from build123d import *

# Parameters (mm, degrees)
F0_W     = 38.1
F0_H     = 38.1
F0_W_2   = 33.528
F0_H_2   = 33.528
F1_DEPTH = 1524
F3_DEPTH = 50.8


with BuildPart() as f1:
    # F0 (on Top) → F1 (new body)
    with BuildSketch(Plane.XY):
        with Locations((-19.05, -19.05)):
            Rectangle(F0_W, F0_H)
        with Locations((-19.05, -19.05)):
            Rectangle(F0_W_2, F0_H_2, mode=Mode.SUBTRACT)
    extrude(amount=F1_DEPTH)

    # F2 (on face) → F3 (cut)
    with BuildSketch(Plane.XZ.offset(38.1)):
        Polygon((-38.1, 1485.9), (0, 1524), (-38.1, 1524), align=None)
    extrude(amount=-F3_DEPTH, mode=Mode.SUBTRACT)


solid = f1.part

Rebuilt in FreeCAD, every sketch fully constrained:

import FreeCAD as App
import Part
import Sketcher

V = App.Vector
Q = App.Units.Quantity

doc = App.newDocument("Part")
body = doc.addObject("PartDesign::Body", "Body")

# Sketch on XY plane
sketch1 = body.newObject("Sketcher::SketchObject", "Sketch")
sketch1.AttachmentSupport = (doc.getObject("XY_Plane"), [""])
sketch1.MapMode = "FlatFace"
sketch1.addGeometry([
    Part.LineSegment(V(-38, 0, 0), V(-38, -38, 0)),  # 0
    Part.LineSegment(V(-38, -38, 0), V(0, -38, 0)),  # 1
    Part.LineSegment(V(0, -38, 0), V(0, 0, 0)),  # 2
    Part.LineSegment(V(0, 0, 0), V(-38, 0, 0)),  # 3
    Part.LineSegment(V(-2, -36, 0), V(-36, -36, 0)),  # 4
    Part.LineSegment(V(-36, -36, 0), V(-36, -2, 0)),  # 5
    Part.LineSegment(V(-36, -2, 0), V(-2, -2, 0)),  # 6
    Part.LineSegment(V(-2, -2, 0), V(-2, -36, 0)),  # 7
], False)
sketch1.addConstraint([
    Sketcher.Constraint("Coincident", 0, 2, 1, 1),
    Sketcher.Constraint("Coincident", 1, 2, 2, 1),
    Sketcher.Constraint("Coincident", 2, 2, 3, 1),
    Sketcher.Constraint("Coincident", 3, 2, 0, 1),
    Sketcher.Constraint("Coincident", 4, 2, 5, 1),
    Sketcher.Constraint("Coincident", 5, 2, 6, 1),
    Sketcher.Constraint("Coincident", 6, 2, 7, 1),
    Sketcher.Constraint("Coincident", 7, 2, 4, 1),
    Sketcher.Constraint("Vertical", 0),
    Sketcher.Constraint("Horizontal", 1),
    Sketcher.Constraint("Vertical", 2),
    Sketcher.Constraint("Horizontal", 3),
    Sketcher.Constraint("Horizontal", 4),
    Sketcher.Constraint("Vertical", 5),
    Sketcher.Constraint("Horizontal", 6),
    Sketcher.Constraint("Vertical", 7),
    Sketcher.Constraint("Coincident", 2, 2, -1, 1),
    Sketcher.Constraint("Equal", 3, 0),
    Sketcher.Constraint("Equal", 6, 5),
    Sketcher.Constraint("DistanceX", 1, 1, 1, 2, Q("1.5 in")),
    Sketcher.Constraint("DistanceX", 4, 2, 4, 1, Q("1.32 in")),
    Sketcher.Constraint("DistanceX", 4, 2, -1, 1, Q("1.41 in")),
    Sketcher.Constraint("DistanceY", 4, 2, -1, 1, Q("1.41 in")),
])
pad1 = body.newObject("PartDesign::Pad", "Pad")
pad1.Profile = sketch1
pad1.Length = Q("60 in")

# Sketch on XZ plane
sketch2 = body.newObject("Sketcher::SketchObject", "Sketch001")
sketch2.AttachmentSupport = (doc.getObject("XZ_Plane"), [""])
sketch2.MapMode = "FlatFace"
sketch2.AttachmentOffset = App.Placement(V(0, 0, 1.5 * 25.4), App.Rotation())
sketch2.addGeometry([
    Part.LineSegment(V(-38, 1486, 0), V(0, 1524, 0)),
    Part.LineSegment(V(0, 1524, 0), V(-38, 1524, 0)),
    Part.LineSegment(V(-38, 1524, 0), V(-38, 1486, 0)),
], False)
sketch2.addConstraint([
    Sketcher.Constraint("Coincident", 0, 2, 1, 1),
    Sketcher.Constraint("Coincident", 1, 2, 2, 1),
    Sketcher.Constraint("Coincident", 2, 2, 0, 1),
    Sketcher.Constraint("Horizontal", 1),
    Sketcher.Constraint("Vertical", 2),
    Sketcher.Constraint("PointOnObject", 0, 2, -2),
    Sketcher.Constraint("Equal", 1, 2),
    Sketcher.Constraint("DistanceX", 1, 2, 1, 1, Q("1.5 in")),
    Sketcher.Constraint("DistanceY", -1, 1, 0, 2, Q("60 in")),
])
pocket1 = body.newObject("PartDesign::Pocket", "Pocket")
pocket1.Profile = sketch2
pocket1.Length = Q("2 in")

doc.recompute()
